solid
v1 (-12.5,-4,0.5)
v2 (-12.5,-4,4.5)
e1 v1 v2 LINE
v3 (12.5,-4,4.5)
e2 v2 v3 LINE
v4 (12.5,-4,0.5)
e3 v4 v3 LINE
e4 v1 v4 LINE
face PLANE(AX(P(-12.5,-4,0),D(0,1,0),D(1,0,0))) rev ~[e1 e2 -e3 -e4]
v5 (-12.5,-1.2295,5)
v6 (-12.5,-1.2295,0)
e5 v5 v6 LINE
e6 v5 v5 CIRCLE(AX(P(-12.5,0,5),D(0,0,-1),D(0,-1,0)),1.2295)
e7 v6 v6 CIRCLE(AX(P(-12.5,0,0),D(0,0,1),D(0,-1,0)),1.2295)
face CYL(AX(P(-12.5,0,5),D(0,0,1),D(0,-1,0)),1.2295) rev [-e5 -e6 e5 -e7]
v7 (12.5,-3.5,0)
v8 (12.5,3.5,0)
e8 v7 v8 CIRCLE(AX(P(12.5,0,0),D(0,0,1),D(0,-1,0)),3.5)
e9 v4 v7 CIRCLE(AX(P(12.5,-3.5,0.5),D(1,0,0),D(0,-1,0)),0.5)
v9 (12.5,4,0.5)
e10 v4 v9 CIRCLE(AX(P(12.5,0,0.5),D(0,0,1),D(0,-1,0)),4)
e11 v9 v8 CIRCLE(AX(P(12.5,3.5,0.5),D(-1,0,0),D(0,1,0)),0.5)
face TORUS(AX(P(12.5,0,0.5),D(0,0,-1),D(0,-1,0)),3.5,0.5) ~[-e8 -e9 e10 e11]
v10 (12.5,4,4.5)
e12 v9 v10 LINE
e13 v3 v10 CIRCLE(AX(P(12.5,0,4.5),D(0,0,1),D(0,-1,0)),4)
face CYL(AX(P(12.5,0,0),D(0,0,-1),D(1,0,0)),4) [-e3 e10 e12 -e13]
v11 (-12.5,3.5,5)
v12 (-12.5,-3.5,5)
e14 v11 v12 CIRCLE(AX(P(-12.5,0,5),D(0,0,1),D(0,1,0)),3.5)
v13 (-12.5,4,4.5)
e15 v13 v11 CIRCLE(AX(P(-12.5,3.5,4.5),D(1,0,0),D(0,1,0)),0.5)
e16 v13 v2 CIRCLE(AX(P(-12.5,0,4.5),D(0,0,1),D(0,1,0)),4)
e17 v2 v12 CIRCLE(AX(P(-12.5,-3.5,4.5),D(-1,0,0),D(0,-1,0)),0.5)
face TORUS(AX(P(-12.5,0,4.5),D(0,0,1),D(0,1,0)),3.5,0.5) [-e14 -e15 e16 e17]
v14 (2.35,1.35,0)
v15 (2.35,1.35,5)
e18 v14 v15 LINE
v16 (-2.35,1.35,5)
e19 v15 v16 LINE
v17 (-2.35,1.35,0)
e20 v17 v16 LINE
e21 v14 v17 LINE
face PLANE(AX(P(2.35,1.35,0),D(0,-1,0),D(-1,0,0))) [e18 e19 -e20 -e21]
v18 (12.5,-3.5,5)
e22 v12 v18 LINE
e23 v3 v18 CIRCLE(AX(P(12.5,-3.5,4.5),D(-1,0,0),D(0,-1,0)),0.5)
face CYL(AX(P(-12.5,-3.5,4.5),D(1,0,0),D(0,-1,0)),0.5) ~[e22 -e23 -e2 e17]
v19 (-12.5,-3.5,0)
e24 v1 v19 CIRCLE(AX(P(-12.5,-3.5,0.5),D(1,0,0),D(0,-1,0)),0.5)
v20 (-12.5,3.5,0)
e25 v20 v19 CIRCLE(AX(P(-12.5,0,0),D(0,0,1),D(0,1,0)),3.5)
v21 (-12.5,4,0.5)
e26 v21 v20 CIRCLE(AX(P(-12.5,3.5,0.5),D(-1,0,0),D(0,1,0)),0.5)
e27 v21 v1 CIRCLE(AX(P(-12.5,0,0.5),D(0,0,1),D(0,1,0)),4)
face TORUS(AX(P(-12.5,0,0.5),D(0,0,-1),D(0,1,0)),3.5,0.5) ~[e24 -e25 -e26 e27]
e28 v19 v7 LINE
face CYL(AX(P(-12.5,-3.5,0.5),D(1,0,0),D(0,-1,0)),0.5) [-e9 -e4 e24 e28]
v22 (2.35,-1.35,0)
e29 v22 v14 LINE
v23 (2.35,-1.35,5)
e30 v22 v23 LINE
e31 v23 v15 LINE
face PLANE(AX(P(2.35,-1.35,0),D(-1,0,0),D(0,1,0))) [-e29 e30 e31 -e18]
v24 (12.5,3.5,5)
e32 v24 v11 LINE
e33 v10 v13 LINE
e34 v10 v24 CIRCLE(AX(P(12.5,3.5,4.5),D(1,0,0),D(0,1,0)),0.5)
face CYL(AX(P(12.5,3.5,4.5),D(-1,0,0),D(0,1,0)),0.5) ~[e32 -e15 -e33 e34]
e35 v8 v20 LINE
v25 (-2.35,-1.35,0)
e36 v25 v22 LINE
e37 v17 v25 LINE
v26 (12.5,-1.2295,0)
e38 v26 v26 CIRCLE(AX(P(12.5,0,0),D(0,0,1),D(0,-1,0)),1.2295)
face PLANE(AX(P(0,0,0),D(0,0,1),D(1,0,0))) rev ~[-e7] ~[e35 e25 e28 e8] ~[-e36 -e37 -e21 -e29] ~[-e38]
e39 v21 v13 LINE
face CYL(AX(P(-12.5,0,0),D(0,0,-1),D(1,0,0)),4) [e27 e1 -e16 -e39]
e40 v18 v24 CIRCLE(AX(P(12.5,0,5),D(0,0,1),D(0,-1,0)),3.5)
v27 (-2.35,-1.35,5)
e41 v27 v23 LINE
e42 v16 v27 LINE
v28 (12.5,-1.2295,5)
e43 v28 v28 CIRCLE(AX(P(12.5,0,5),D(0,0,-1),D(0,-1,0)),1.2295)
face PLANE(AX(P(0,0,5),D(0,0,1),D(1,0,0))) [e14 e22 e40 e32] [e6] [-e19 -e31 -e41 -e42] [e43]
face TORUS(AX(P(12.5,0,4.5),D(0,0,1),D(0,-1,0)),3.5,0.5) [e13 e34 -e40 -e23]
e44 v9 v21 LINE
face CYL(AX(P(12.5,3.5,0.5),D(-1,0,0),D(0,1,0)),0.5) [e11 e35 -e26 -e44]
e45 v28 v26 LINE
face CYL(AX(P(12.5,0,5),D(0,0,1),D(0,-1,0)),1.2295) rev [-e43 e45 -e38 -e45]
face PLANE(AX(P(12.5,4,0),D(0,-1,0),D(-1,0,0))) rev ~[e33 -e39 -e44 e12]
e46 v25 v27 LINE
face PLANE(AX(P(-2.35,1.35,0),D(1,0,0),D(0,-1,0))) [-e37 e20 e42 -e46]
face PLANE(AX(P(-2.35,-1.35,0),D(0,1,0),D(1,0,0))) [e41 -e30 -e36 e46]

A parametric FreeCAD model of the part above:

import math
import FreeCAD as App
import Part
import Sketcher
from FreeCAD import Vector


def edges_at(feature, points):
    """Names of the edges that pass closest to the given points."""
    edges = feature.Shape.Edges
    near = lambda p: min(range(len(edges)), key=lambda i: edges[i].distToShape(Part.Vertex(*p))[0])
    return sorted({f"Edge{near(p) + 1}" for p in points})

doc = App.newDocument("Part")
body = doc.addObject("PartDesign::Body", "Body")

sketch1 = body.newObject("Sketcher::SketchObject", "Sketch")
sketch1.AttachmentSupport = (doc.getObject("XY_Plane"), [""])
sketch1.MapMode = "FlatFace"
sketch1.addGeometry([
    Part.ArcOfCircle(Part.Circle(Vector(12.5, 0, 0), Vector(0, 0, 1), 4), math.radians(-90), math.radians(90)),
    Part.LineSegment(Vector(12.5, 4, 0), Vector(-12.5, 4, 0)),
    Part.ArcOfCircle(Part.Circle(Vector(-12.5, 0, 0), Vector(0, 0, 1), 4), math.radians(90), math.radians(270)),
    Part.LineSegment(Vector(-12.5, -4, 0), Vector(12.5, -4, 0)),
    Part.LineSegment(Vector(2.4, -1.4, 0), Vector(-2.4, -1.4, 0)),
    Part.LineSegment(Vector(-2.4, -1.4, 0), Vector(-2.4, 1.4, 0)),
    Part.LineSegment(Vector(-2.4, 1.4, 0), Vector(2.4, 1.4, 0)),
    Part.LineSegment(Vector(2.4, 1.4, 0), Vector(2.4, -1.4, 0)),
], False)
sketch1.addConstraint([
    Sketcher.Constraint("Tangent", 0, 2, 1, 1),
    Sketcher.Constraint("Tangent", 1, 2, 2, 1),
    Sketcher.Constraint("Tangent", 2, 2, 3, 1),
    Sketcher.Constraint("Tangent", 3, 2, 0, 1),
    Sketcher.Constraint("Coincident", 4, 2, 5, 1),
    Sketcher.Constraint("Coincident", 5, 2, 6, 1),
    Sketcher.Constraint("Coincident", 6, 2, 7, 1),
    Sketcher.Constraint("Coincident", 7, 2, 4, 1),
    Sketcher.Constraint("Horizontal", 1),
    Sketcher.Constraint("Horizontal", 3),
    Sketcher.Constraint("Horizontal", 4),
    Sketcher.Constraint("Vertical", 5),
    Sketcher.Constraint("Horizontal", 6),
    Sketcher.Constraint("Vertical", 7),
    Sketcher.Constraint("Symmetric", 0, 3, 2, 3, -1, 1),
    Sketcher.Constraint("Symmetric", 4, 2, 6, 2, -1, 1),
    Sketcher.Constraint("Radius", 0, 4.0),
    Sketcher.Constraint("DistanceX", 1, 2, 1, 1, 25.0),
    Sketcher.Constraint("DistanceX", 4, 2, 4, 1, 4.7),
    Sketcher.Constraint("DistanceY", 5, 1, 5, 2, 2.7),
])
pad1 = body.newObject("PartDesign::Pad", "Pad")
pad1.Profile = sketch1
pad1.Length = 5
doc.recompute()

fillet = body.newObject("PartDesign::Fillet", "Fillet")
fillet.Base = (pad1, edges_at(pad1, [
    (0, 4, 5),
    (-16.5, 0, 5),
    (16.5, 0, 5),
    (0, -4, 0),
    (16.5, 0, 0),
    (-16.5, 0, 0),
]))
fillet.Radius = 0.5

sketch2 = body.newObject("Sketcher::SketchObject", "Sketch001")
sketch2.AttachmentSupport = (doc.getObject("XY_Plane"), [""])
sketch2.MapMode = "FlatFace"
sketch2.AttachmentOffset = App.Placement(Vector(0, 0, 5), App.Rotation())
sketch2.addGeometry(Part.Circle(Vector(12.5, 0, 0), Vector(0, 0, 1), 1.2), False)
sketch2.addConstraint([
    Sketcher.Constraint("PointOnObject", 0, 3, -1),
    Sketcher.Constraint("Diameter", 0, 2.459),
    Sketcher.Constraint("DistanceX", -1, 1, 0, 3, 12.5),
])
doc.recompute()
hole = body.newObject("PartDesign::Hole", "Hole")
hole.Profile = sketch2
hole.ThreadType = "None"
hole.Diameter = 2.459
hole.DepthType = "ThroughAll"

sketch3 = body.newObject("Sketcher::SketchObject", "Sketch002")
sketch3.AttachmentSupport = (doc.getObject("XY_Plane"), [""])
sketch3.MapMode = "FlatFace"
sketch3.AttachmentOffset = App.Placement(Vector(0, 0, 5), App.Rotation())
sketch3.addGeometry(Part.Circle(Vector(-12.5, 0, 0), Vector(0, 0, 1), 1.2), False)
sketch3.addConstraint([
    Sketcher.Constraint("PointOnObject", 0, 3, -1),
    Sketcher.Constraint("Diameter", 0, 2.459),
    Sketcher.Constraint("DistanceX", 0, 3, -1, 1, 12.5),
])
doc.recompute()
hole2 = body.newObject("PartDesign::Hole", "Hole001")
hole2.Profile = sketch3
hole2.ThreadType = "None"
hole2.Diameter = 2.459
hole2.DepthType = "ThroughAll"

doc.recompute()
